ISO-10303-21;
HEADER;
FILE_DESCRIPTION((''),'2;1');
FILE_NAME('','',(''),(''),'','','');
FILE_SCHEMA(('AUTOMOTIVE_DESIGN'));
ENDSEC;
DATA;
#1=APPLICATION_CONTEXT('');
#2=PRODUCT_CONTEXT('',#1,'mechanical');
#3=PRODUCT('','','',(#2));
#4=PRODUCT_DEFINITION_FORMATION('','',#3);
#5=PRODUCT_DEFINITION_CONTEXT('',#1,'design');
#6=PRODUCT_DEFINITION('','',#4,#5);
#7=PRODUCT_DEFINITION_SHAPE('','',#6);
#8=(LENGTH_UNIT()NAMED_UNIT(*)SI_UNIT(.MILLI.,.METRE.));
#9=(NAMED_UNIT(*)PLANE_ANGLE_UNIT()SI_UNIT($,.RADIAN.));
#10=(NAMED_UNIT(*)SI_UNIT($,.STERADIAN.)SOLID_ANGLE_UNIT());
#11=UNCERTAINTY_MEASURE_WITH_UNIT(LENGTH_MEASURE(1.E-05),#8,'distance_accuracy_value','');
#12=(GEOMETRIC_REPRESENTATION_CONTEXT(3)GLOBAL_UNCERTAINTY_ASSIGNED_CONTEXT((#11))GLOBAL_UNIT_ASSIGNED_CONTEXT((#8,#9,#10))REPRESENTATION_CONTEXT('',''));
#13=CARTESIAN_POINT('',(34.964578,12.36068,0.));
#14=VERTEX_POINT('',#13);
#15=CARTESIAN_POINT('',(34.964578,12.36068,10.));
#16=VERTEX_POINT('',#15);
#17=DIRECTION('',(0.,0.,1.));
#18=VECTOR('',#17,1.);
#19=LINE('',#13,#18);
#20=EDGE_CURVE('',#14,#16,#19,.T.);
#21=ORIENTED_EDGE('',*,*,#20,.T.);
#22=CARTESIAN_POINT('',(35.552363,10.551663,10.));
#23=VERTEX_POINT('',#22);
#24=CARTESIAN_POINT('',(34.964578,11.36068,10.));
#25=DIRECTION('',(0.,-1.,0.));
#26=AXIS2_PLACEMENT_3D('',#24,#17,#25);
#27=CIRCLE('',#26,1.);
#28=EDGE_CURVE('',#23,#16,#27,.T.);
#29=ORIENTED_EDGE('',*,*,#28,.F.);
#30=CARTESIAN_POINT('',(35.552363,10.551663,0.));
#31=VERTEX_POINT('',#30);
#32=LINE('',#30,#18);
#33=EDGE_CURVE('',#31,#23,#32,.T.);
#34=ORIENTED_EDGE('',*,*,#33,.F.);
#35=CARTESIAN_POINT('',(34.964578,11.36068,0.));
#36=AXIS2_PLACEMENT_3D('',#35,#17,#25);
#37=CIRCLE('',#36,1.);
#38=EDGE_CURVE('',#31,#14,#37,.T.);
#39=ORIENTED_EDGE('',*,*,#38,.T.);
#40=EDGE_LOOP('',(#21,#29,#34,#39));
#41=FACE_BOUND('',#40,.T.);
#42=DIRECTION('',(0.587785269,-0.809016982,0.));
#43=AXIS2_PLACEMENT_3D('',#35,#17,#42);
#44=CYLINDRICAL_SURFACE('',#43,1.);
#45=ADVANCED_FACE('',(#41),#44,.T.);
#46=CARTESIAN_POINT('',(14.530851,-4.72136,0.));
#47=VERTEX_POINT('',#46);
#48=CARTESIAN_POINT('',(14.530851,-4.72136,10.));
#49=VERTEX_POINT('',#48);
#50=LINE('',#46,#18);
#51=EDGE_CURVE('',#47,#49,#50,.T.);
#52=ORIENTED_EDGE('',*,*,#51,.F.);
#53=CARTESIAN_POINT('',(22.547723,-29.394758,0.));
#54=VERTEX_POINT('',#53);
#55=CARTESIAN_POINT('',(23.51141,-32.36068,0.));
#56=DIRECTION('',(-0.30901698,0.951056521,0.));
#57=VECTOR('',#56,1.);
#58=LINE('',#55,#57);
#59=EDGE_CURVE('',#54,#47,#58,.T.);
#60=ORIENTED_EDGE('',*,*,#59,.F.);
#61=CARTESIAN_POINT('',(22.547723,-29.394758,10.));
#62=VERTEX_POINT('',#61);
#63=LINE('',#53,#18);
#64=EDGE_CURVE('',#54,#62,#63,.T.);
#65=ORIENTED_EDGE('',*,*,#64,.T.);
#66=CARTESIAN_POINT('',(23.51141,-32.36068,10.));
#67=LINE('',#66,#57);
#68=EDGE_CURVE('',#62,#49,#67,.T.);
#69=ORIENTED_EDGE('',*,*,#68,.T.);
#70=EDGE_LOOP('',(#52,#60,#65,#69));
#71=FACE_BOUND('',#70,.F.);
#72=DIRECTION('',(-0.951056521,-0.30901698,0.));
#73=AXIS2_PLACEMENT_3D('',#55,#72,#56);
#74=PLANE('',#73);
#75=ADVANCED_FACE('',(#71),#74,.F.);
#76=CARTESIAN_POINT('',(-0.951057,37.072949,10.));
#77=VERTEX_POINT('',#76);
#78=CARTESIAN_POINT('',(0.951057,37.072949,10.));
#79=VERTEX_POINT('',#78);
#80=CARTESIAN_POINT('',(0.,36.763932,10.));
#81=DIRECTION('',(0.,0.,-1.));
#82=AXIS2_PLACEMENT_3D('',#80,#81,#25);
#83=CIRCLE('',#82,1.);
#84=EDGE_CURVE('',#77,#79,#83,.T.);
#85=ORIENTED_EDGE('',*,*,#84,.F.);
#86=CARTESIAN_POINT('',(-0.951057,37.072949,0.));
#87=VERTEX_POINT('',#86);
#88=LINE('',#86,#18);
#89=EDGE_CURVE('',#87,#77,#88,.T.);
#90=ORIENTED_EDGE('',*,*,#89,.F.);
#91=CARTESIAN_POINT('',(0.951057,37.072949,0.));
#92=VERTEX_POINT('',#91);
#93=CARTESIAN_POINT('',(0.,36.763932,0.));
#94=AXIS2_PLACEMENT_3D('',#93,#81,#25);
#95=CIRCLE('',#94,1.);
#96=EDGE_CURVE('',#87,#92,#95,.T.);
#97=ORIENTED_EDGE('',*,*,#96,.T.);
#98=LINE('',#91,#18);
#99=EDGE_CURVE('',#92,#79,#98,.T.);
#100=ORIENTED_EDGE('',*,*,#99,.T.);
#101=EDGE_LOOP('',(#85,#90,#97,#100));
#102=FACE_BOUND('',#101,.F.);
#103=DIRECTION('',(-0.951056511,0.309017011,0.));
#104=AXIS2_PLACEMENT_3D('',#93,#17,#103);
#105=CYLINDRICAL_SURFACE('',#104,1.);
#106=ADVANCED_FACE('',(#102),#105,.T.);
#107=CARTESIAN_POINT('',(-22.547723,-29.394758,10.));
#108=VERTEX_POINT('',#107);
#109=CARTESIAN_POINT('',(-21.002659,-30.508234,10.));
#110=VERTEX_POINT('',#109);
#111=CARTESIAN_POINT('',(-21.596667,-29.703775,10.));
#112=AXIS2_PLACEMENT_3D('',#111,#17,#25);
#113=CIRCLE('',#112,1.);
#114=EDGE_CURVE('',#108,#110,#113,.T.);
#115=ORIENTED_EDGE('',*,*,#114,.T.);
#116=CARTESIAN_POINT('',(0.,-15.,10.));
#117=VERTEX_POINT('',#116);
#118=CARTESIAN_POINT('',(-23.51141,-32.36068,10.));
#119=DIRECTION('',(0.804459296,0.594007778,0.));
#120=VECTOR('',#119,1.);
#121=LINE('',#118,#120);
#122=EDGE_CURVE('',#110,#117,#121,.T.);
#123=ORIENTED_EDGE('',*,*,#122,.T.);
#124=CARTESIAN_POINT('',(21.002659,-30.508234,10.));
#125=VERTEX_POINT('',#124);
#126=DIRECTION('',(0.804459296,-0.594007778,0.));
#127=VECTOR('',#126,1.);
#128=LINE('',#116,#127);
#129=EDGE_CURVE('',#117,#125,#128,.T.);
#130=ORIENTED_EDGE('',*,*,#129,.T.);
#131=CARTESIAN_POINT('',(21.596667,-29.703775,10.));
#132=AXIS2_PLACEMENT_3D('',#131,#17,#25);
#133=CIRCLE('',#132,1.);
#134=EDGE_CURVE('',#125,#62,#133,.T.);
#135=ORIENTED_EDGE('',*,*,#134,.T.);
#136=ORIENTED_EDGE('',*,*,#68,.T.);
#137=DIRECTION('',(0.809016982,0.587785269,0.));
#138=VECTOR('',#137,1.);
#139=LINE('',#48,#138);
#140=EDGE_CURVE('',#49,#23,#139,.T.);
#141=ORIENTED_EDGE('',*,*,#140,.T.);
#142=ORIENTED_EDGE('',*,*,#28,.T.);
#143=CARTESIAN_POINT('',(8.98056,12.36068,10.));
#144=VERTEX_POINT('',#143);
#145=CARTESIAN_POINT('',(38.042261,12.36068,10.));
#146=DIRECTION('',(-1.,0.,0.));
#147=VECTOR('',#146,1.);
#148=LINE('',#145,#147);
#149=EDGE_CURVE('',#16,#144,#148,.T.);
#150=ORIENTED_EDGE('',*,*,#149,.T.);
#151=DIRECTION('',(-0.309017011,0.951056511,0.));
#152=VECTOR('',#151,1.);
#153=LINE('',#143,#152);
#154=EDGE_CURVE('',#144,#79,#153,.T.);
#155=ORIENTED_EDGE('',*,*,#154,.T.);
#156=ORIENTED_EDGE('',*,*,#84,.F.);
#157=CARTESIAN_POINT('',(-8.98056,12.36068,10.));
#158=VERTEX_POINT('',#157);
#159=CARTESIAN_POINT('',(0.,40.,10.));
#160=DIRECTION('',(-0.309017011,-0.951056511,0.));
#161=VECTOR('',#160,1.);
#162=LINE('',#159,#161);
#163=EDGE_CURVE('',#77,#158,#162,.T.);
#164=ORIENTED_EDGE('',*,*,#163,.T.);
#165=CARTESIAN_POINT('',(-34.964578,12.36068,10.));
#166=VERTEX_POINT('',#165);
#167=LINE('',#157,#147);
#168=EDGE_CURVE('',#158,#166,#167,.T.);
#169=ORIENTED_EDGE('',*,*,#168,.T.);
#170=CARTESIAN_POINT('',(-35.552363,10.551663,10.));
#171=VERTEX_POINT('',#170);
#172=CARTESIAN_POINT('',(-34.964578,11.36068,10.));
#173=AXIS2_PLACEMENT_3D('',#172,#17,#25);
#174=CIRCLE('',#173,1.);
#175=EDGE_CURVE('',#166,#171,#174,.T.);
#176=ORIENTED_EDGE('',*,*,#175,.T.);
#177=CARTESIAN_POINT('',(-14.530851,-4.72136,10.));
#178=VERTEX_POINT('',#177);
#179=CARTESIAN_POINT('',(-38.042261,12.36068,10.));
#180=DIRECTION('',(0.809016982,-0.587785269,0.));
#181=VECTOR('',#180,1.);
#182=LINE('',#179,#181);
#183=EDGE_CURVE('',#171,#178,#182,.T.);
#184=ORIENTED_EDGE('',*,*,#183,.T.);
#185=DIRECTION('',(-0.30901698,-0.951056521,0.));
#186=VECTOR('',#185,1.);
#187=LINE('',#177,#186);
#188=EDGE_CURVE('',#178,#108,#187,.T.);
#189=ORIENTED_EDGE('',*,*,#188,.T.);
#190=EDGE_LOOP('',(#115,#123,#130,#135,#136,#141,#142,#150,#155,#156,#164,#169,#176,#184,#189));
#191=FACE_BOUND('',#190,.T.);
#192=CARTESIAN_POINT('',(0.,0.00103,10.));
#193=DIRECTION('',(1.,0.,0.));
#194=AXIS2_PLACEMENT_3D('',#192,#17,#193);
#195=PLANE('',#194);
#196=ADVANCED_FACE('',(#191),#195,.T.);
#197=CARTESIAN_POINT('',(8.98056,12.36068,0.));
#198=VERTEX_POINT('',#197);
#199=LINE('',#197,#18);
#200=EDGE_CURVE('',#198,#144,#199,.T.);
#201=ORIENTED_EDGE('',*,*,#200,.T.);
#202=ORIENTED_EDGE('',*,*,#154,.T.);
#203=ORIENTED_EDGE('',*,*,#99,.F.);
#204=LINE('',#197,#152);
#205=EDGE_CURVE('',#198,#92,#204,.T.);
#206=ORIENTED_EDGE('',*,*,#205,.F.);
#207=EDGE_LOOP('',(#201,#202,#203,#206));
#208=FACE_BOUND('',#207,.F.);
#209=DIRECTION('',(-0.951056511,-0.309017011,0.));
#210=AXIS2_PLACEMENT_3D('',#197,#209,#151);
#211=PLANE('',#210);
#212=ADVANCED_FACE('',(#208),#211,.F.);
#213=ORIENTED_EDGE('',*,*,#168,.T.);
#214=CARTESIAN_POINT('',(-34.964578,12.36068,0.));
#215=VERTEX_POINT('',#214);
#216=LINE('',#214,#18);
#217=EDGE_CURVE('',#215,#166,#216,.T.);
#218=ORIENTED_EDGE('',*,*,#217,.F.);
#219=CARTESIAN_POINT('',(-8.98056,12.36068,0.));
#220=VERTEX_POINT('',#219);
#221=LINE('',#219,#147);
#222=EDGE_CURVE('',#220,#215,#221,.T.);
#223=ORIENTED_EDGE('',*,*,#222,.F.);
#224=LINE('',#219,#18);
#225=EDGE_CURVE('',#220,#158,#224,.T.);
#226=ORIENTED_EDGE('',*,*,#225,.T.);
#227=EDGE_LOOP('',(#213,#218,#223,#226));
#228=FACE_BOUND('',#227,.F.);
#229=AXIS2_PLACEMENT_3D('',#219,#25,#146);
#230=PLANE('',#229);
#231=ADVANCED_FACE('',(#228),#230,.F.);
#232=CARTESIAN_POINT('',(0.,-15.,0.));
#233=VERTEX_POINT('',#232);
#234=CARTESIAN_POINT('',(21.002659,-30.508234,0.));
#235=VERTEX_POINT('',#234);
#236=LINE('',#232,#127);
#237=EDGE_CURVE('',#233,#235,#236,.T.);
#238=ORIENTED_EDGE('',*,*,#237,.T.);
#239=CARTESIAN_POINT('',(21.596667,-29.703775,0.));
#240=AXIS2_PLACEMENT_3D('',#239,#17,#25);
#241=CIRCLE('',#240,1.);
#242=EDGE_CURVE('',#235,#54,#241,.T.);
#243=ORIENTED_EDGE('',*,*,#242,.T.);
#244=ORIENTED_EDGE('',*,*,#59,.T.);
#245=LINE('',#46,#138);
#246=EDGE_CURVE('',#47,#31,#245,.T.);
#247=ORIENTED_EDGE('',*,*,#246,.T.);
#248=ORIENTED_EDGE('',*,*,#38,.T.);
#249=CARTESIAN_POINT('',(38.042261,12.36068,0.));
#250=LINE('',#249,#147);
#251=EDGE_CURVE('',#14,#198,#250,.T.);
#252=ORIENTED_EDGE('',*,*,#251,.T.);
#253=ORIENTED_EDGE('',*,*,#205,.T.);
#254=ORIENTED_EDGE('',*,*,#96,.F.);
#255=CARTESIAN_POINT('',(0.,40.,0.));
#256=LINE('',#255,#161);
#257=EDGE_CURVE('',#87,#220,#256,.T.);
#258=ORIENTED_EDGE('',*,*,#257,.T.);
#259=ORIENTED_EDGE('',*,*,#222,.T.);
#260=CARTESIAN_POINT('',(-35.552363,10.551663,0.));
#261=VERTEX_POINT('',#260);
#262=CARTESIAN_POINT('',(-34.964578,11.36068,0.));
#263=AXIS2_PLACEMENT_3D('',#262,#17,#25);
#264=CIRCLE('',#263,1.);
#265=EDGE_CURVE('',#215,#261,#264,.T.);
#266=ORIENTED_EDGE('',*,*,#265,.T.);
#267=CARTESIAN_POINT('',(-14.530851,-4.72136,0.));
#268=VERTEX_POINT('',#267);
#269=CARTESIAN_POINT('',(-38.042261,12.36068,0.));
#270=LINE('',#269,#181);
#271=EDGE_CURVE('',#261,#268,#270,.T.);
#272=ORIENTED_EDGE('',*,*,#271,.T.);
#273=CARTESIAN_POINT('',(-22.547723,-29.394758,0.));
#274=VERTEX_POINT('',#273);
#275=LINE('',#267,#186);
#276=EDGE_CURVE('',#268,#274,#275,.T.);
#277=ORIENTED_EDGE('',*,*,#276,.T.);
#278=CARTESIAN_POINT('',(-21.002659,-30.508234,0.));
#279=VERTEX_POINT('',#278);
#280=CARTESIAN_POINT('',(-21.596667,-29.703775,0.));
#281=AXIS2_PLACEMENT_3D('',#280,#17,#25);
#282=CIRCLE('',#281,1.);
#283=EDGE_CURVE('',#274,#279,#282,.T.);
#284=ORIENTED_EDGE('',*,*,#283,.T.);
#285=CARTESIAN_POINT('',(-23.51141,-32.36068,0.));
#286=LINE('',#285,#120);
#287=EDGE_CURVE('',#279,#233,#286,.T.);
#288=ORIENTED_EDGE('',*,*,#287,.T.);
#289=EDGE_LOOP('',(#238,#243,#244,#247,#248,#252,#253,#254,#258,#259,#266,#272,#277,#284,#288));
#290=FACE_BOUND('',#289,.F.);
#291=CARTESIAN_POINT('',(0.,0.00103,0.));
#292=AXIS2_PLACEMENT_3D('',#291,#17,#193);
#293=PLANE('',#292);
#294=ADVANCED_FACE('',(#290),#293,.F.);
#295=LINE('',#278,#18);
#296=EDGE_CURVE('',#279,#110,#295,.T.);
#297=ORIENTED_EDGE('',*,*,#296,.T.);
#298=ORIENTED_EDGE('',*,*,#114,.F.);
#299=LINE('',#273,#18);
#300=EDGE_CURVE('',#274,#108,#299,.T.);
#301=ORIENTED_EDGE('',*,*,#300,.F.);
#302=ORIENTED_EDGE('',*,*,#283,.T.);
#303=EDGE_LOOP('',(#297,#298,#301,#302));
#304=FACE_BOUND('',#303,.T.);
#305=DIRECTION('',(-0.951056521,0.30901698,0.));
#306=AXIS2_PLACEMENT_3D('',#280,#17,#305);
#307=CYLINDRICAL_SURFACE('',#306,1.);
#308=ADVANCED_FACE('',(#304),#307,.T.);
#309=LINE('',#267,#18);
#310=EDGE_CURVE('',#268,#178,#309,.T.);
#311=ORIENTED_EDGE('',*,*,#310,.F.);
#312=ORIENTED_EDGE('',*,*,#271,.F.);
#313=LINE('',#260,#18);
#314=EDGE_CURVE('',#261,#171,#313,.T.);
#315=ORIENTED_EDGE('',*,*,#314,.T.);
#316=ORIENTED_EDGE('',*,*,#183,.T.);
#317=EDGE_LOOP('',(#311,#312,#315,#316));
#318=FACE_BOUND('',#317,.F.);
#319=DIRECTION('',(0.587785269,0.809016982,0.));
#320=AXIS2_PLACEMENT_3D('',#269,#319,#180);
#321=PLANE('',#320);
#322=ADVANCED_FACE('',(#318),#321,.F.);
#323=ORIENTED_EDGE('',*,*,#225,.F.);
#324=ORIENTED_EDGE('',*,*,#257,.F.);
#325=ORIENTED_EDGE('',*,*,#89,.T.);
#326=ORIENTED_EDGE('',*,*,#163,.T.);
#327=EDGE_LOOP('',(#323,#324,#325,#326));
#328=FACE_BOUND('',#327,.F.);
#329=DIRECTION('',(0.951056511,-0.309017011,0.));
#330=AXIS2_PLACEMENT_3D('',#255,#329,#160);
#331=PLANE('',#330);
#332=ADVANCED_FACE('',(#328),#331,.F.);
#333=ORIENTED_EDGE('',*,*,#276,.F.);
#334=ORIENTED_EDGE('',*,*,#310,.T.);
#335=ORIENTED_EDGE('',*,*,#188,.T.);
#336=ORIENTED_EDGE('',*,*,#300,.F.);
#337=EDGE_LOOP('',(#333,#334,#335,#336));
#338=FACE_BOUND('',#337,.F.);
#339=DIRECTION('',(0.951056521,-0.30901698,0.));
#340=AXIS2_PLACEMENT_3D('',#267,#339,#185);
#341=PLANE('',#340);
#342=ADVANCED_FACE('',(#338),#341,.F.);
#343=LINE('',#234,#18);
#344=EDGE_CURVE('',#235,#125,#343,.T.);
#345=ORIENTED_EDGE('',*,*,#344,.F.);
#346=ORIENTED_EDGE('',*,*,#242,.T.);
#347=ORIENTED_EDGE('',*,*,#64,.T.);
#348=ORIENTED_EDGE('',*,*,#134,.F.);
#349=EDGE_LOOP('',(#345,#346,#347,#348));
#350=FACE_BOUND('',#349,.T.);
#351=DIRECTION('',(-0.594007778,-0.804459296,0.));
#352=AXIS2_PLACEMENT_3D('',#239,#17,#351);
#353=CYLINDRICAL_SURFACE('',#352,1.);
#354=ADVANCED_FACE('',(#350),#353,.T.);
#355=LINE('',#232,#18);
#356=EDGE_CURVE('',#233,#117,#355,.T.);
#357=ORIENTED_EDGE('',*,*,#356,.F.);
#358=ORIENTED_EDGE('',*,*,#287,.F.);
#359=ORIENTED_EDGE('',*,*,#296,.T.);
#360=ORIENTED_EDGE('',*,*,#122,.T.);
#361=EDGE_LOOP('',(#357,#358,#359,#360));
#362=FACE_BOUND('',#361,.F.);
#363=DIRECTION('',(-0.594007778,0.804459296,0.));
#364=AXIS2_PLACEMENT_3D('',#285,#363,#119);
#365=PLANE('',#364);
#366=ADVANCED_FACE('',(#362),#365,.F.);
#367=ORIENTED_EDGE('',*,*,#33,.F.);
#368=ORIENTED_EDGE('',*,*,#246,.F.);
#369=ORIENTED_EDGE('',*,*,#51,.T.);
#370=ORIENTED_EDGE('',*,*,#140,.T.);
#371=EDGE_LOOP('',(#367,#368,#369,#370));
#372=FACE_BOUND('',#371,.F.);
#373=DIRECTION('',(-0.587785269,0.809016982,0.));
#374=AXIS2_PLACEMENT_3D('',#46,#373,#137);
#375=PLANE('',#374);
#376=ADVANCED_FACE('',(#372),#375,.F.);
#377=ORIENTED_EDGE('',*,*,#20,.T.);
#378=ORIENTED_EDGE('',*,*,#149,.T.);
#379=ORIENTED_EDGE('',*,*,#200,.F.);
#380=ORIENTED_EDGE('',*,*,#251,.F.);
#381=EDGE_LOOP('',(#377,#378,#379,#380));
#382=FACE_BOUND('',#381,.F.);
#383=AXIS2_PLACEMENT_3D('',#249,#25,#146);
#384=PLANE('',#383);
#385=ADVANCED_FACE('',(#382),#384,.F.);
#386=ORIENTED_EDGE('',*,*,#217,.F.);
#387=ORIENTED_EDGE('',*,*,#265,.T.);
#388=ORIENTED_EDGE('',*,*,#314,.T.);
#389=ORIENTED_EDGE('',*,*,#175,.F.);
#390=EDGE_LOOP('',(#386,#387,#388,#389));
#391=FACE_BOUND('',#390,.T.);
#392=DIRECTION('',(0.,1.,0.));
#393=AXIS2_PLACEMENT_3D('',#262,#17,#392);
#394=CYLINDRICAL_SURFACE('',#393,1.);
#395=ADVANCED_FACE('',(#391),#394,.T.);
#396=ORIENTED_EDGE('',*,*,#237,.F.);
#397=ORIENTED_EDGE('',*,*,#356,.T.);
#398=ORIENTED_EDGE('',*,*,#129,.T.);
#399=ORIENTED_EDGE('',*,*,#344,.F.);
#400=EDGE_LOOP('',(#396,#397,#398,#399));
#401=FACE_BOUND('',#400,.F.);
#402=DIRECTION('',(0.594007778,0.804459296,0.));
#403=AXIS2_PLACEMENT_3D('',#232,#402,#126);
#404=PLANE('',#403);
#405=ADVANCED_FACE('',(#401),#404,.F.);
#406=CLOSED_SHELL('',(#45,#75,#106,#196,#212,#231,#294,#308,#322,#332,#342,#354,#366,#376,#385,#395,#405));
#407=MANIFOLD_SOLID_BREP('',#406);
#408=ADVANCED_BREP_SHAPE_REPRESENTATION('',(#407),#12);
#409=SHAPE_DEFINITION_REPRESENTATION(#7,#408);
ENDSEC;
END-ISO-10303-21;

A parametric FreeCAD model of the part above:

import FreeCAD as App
import Part
import Sketcher
Q = App.Units.Quantity


def edges_at(feature, points):
    """Names of the edges that pass closest to the given points."""
    edges = feature.Shape.Edges
    near = lambda p: min(range(len(edges)), key=lambda i: edges[i].distToShape(Part.Vertex(*p))[0])
    return sorted({f"Edge{near(p) + 1}" for p in points})


def add_polygon(sketch, points):
    """Adds a closed chain of lines whose ends are joined by coincident constraints."""
    first, n = sketch.GeometryCount, len(points)
    for a, b in zip(points, points[1:] + points[:1]):
        sketch.addGeometry(Part.LineSegment(App.Vector(*a, 0), App.Vector(*b, 0)), False)
    for i in range(n):
        sketch.addConstraint(Sketcher.Constraint("Coincident", first + i, 2, first + (i + 1) % n, 1))

doc = App.newDocument("Part")
body = doc.addObject("PartDesign::Body", "Body")

sketch1 = body.newObject("Sketcher::SketchObject", "Sketch")
sketch1.AttachmentSupport = (doc.getObject("XY_Plane"), [""])
sketch1.MapMode = "FlatFace"
add_polygon(sketch1, [(0, 40), (-9, 12), (-38, 12), (-15, -5), (-24, -32), (0, -15), (24, -32), (15, -5), (38, 12), (9, 12)])
sketch1.addConstraint(Sketcher.Constraint("Horizontal", 1))
sketch1.addConstraint(Sketcher.Constraint("Horizontal", 8))
sketch1.addConstraint(Sketcher.Constraint("Symmetric", 3, 2, 5, 2, -2))
sketch1.addConstraint(Sketcher.Constraint("Symmetric", 2, 2, 6, 2, -2))
sketch1.addConstraint(Sketcher.Constraint("Symmetric", 1, 2, 7, 2, -2))
sketch1.addConstraint(Sketcher.Constraint("PointOnObject", 4, 2, -2))
sketch1.addConstraint(Sketcher.Constraint("PointOnObject", 9, 2, -2))
sketch1.addConstraint(Sketcher.Constraint("Parallel", 0, 3))
sketch1.addConstraint(Sketcher.Constraint("Parallel", 6, 9))
sketch1.addConstraint(Sketcher.Constraint("Equal", 0, 2))
sketch1.addConstraint(Sketcher.Constraint("Equal", 2, 3))
sketch1.addConstraint(Sketcher.Constraint("Angle", 0, Q("-108.000001 deg")))
sketch1.addConstraint(Sketcher.Constraint("Angle", 2, Q("-36.000001 deg")))
sketch1.addConstraint(Sketcher.Constraint("DistanceY", 4, 2, -1, 1, Q("15 mm")))
sketch1.addConstraint(Sketcher.Constraint("DistanceY", -1, 1, 9, 2, Q("40 mm")))
sketch1.addConstraint(Sketcher.Constraint("DistanceX", 1, 2, 1, 1, Q("29.061701 mm")))
sketch1.addConstraint(Sketcher.Constraint("Distance", 0, Q("29.061701 mm")))
pad1 = body.newObject("PartDesign::Pad", "Pad")
pad1.Profile = sketch1
pad1.Length = 10
doc.recompute()

fillet = body.newObject("PartDesign::Fillet", "Fillet")
fillet.Base = (pad1, edges_at(pad1, [
    (38.042, 12.361, 5),
    (0, 40, 5),
    (-38.042, 12.361, 5),
    (-23.511, -32.361, 5),
    (23.511, -32.361, 5),
]))
fillet.Radius = 1

doc.recompute()
